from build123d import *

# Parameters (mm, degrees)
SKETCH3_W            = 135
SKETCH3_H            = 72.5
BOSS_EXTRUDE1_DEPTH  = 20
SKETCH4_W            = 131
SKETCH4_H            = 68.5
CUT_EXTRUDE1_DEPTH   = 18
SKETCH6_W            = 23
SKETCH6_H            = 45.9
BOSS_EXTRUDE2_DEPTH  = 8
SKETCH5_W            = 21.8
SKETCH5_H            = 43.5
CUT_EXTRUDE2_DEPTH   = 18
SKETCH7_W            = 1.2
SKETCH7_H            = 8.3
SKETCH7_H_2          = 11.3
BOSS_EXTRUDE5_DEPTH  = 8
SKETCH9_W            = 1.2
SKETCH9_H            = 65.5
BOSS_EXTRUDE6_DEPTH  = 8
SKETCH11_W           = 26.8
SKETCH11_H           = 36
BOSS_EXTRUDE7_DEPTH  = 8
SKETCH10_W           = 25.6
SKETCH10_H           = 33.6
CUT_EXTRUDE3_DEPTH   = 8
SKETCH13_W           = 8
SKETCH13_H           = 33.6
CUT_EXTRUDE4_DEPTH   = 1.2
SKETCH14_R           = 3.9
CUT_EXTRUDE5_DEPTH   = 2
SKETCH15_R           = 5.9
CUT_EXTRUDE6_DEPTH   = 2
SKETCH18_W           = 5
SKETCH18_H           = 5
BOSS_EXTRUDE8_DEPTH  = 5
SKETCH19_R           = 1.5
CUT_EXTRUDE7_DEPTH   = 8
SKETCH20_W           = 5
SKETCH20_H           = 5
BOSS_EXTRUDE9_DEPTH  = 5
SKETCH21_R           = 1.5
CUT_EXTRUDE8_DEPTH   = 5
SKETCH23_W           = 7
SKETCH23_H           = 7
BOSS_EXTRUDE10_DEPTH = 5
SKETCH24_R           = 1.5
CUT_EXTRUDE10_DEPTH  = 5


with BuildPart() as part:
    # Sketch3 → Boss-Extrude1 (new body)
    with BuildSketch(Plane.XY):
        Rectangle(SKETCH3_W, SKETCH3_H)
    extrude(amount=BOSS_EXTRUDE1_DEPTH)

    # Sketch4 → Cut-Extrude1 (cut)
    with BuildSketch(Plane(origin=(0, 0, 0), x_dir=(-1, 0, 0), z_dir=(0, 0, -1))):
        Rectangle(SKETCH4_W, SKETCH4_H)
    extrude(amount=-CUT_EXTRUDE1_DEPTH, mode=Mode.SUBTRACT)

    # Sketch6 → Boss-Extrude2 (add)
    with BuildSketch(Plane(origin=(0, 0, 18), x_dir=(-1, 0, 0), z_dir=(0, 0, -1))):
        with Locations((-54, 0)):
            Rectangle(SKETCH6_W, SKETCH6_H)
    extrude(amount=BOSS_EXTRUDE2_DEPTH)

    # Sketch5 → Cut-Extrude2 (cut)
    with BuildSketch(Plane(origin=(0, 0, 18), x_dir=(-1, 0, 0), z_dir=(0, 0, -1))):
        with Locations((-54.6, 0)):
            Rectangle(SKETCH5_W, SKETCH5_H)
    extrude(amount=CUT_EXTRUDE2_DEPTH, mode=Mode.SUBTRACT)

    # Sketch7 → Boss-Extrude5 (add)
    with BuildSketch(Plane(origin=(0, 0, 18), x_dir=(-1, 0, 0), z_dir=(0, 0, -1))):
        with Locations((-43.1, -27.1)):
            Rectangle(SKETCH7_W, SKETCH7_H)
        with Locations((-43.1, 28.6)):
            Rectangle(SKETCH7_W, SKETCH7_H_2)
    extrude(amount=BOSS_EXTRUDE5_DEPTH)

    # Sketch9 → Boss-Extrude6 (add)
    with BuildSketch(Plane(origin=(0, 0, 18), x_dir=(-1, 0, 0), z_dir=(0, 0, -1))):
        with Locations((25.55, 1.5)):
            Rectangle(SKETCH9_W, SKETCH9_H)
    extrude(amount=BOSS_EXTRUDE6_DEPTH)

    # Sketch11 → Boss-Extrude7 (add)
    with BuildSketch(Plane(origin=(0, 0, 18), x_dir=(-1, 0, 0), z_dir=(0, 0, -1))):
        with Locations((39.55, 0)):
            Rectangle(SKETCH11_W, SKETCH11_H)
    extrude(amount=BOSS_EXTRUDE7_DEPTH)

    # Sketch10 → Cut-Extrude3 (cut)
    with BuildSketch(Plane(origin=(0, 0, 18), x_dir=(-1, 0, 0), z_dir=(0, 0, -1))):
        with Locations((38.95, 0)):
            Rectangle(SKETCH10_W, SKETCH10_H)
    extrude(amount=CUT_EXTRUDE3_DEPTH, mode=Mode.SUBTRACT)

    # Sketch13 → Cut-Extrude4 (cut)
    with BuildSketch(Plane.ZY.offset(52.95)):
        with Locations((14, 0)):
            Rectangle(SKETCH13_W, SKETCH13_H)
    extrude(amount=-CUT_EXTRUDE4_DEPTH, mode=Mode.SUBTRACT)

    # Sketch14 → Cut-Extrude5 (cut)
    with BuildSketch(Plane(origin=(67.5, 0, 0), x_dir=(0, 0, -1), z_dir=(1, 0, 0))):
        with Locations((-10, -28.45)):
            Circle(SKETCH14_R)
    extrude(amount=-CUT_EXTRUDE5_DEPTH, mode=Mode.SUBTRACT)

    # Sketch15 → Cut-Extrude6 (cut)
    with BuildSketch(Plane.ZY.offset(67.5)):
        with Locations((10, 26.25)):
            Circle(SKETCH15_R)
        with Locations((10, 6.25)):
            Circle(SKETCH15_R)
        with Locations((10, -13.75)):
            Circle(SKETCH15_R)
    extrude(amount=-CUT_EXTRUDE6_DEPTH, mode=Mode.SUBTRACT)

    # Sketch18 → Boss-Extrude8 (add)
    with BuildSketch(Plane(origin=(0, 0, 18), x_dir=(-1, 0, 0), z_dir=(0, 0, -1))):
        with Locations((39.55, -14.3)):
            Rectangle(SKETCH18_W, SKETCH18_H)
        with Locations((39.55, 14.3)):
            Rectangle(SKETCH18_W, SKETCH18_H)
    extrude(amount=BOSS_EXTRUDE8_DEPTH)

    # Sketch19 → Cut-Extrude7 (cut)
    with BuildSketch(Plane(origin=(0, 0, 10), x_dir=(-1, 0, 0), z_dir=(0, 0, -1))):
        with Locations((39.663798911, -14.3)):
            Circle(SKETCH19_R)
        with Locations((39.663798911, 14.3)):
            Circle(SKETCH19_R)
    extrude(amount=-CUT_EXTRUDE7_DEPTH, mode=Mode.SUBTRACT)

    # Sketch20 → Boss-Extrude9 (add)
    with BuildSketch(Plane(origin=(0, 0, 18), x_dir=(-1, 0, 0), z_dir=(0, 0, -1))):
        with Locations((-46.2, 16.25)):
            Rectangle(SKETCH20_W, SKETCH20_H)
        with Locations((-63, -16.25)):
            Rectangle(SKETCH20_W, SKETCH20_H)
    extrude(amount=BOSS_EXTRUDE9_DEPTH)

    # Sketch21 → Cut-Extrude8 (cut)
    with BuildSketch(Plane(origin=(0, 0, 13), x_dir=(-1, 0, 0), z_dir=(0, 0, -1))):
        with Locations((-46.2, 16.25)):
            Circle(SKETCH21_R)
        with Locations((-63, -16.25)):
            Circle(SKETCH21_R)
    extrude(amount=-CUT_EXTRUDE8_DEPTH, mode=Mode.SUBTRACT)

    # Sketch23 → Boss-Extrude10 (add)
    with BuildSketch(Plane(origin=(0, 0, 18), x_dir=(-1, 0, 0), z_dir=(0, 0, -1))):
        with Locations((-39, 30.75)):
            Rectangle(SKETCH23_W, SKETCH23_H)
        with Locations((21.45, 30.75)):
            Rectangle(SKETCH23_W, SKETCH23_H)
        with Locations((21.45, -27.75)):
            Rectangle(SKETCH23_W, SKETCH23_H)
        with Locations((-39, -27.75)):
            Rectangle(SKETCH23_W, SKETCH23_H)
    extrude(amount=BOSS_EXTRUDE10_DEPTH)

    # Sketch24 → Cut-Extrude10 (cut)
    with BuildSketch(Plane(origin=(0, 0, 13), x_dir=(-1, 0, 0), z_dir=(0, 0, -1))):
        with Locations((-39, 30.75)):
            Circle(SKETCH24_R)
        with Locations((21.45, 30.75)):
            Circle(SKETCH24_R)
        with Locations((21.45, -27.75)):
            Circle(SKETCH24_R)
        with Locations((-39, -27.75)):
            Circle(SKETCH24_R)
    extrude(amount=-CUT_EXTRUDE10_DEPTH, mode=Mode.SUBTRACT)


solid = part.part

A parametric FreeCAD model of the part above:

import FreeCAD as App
import Part
import Sketcher

V = App.Vector


def add_polygon(sketch, points):
    """Adds a closed chain of lines whose ends are joined by coincident constraints."""
    first, n = sketch.GeometryCount, len(points)
    for a, b in zip(points, points[1:] + points[:1]):
        sketch.addGeometry(Part.LineSegment(App.Vector(*a, 0), App.Vector(*b, 0)), False)
    for i in range(n):
        sketch.addConstraint(Sketcher.Constraint("Coincident", first + i, 2, first + (i + 1) % n, 1))

doc = App.newDocument("Part")
body = doc.addObject("PartDesign::Body", "Body")

sketch1 = body.newObject("Sketcher::SketchObject", "Sketch")
sketch1.AttachmentSupport = (doc.getObject("XY_Plane"), [""])
sketch1.MapMode = "FlatFace"
add_polygon(sketch1, [(-68, 36), (-68, -36), (68, -36), (68, 36)])
sketch1.addConstraint([
    Sketcher.Constraint("Vertical", 0),
    Sketcher.Constraint("Horizontal", 1),
    Sketcher.Constraint("Vertical", 2),
    Sketcher.Constraint("Horizontal", 3),
    Sketcher.Constraint("Symmetric", 0, 2, 2, 2, -1, 1),
    Sketcher.Constraint("DistanceX", 1, 1, 1, 2, 135.0),
    Sketcher.Constraint("DistanceY", 0, 2, 0, 1, 72.5),
])
pad1 = body.newObject("PartDesign::Pad", "Pad")
pad1.Profile = sketch1
pad1.Length = 20

sketch2 = body.newObject("Sketcher::SketchObject", "Sketch001")
sketch2.AttachmentSupport = (doc.getObject("XY_Plane"), [""])
sketch2.MapMode = "FlatFace"
add_polygon(sketch2, [(66, 34), (66, -34), (-66, -34), (-66, 34)])
sketch2.addConstraint([
    Sketcher.Constraint("Vertical", 0),
    Sketcher.Constraint("Horizontal", 1),
    Sketcher.Constraint("Vertical", 2),
    Sketcher.Constraint("Horizontal", 3),
    Sketcher.Constraint("Symmetric", 0, 2, 2, 2, -1, 1),
    Sketcher.Constraint("DistanceX", 1, 2, 1, 1, 131.0),
    Sketcher.Constraint("DistanceY", 0, 2, 0, 1, 68.5),
])
pocket1 = body.newObject("PartDesign::Pocket", "Pocket")
pocket1.Profile = sketch2
pocket1.Length = 18
pocket1.Reversed = True

sketch3 = body.newObject("Sketcher::SketchObject", "Sketch002")
sketch3.AttachmentSupport = (doc.getObject("XY_Plane"), [""])
sketch3.MapMode = "FlatFace"
sketch3.AttachmentOffset = App.Placement(V(0, 0, 18), App.Rotation())
add_polygon(sketch3, [(66, 23), (66, -23), (42, -23), (42, 23)])
sketch3.addConstraint([
    Sketcher.Constraint("Vertical", 0),
    Sketcher.Constraint("Horizontal", 1),
    Sketcher.Constraint("Vertical", 2),
    Sketcher.Constraint("Horizontal", 3),
    Sketcher.Constraint("DistanceX", 1, 2, 1, 1, 23.0),
    Sketcher.Constraint("DistanceY", 0, 2, 0, 1, 45.9),
    Sketcher.Constraint("DistanceX", -1, 1, 0, 2, 65.5),
    Sketcher.Constraint("DistanceY", 0, 2, -1, 1, 22.95),
])
pad2 = body.newObject("PartDesign::Pad", "Pad001")
pad2.Profile = sketch3
pad2.Length = 8
pad2.Reversed = True

sketch4 = body.newObject("Sketcher::SketchObject", "Sketch003")
sketch4.AttachmentSupport = (doc.getObject("XY_Plane"), [""])
sketch4.MapMode = "FlatFace"
sketch4.AttachmentOffset = App.Placement(V(0, 0, 18), App.Rotation())
add_polygon(sketch4, [(66, 22), (66, -22), (44, -22), (44, 22)])
sketch4.addConstraint([
    Sketcher.Constraint("Vertical", 0),
    Sketcher.Constraint("Horizontal", 1),
    Sketcher.Constraint("Vertical", 2),
    Sketcher.Constraint("Horizontal", 3),
    Sketcher.Constraint("DistanceX", 1, 2, 1, 1, 21.8),
    Sketcher.Constraint("DistanceY", 0, 2, 0, 1, 43.5),
    Sketcher.Constraint("DistanceX", -1, 1, 0, 2, 65.5),
    Sketcher.Constraint("DistanceY", 0, 2, -1, 1, 21.75),
])
pocket2 = body.newObject("PartDesign::Pocket", "Pocket001")
pocket2.Profile = sketch4
pocket2.Length = 18

sketch5 = body.newObject("Sketcher::SketchObject", "Sketch004")
sketch5.AttachmentSupport = (doc.getObject("XY_Plane"), [""])
sketch5.MapMode = "FlatFace"
sketch5.AttachmentOffset = App.Placement(V(0, 0, 18), App.Rotation())
add_polygon(sketch5, [(43.7, -22.9), (43.7, -31.2), (42.5, -31.2), (42.5, -22.9)])
add_polygon(sketch5, [(43.7, 34.2), (43.7, 22.9), (42.5, 22.9), (42.5, 34.2)])
sketch5.addConstraint([
    Sketcher.Constraint("Vertical", 0),
    Sketcher.Constraint("Horizontal", 1),
    Sketcher.Constraint("Vertical", 2),
    Sketcher.Constraint("Horizontal", 3),
    Sketcher.Constraint("Vertical", 4),
    Sketcher.Constraint("Horizontal", 5),
    Sketcher.Constraint("Vertical", 6),
    Sketcher.Constraint("Horizontal", 7),
    Sketcher.Constraint("Symmetric", 3, 2, 4, 2, -1),
    Sketcher.Constraint("Vertical", 2, 2, 5, 2),
    Sketcher.Constraint("DistanceX", 1, 2, 1, 1, 1.2),
    Sketcher.Constraint("DistanceY", 0, 2, 0, 1, 8.3),
    Sketcher.Constraint("DistanceY", 4, 2, 4, 1, 11.3),
    Sketcher.Constraint("DistanceX", -1, 1, 0, 2, 43.7),
    Sketcher.Constraint("DistanceY", 3, 2, 4, 2, 45.9),
])
pad3 = body.newObject("PartDesign::Pad", "Pad002")
pad3.Profile = sketch5
pad3.Length = 8
pad3.Reversed = True

sketch6 = body.newObject("Sketcher::SketchObject", "Sketch005")
sketch6.AttachmentSupport = (doc.getObject("XY_Plane"), [""])
sketch6.MapMode = "FlatFace"
sketch6.AttachmentOffset = App.Placement(V(0, 0, 18), App.Rotation())
add_polygon(sketch6, [(-24.9, 34.2), (-24.9, -31.2), (-26.1, -31.2), (-26.1, 34.2)])
sketch6.addConstraint([
    Sketcher.Constraint("Vertical", 0),
    Sketcher.Constraint("Horizontal", 1),
    Sketcher.Constraint("Vertical", 2),
    Sketcher.Constraint("Horizontal", 3),
    Sketcher.Constraint("DistanceX", 1, 2, 1, 1, 1.2),
    Sketcher.Constraint("DistanceY", 0, 2, 0, 1, 65.5),
    Sketcher.Constraint("DistanceX", 0, 2, -1, 1, 24.95),
    Sketcher.Constraint("DistanceY", 0, 2, -1, 1, 31.25),
])
pad4 = body.newObject("PartDesign::Pad", "Pad003")
pad4.Profile = sketch6
pad4.Length = 8
pad4.Reversed = True

sketch7 = body.newObject("Sketcher::SketchObject", "Sketch006")
sketch7.AttachmentSupport = (doc.getObject("XY_Plane"), [""])
sketch7.MapMode = "FlatFace"
sketch7.AttachmentOffset = App.Placement(V(0, 0, 18), App.Rotation())
add_polygon(sketch7, [(-26, 18), (-26, -18), (-53, -18), (-53, 18)])
sketch7.addConstraint([
    Sketcher.Constraint("Vertical", 0),
    Sketcher.Constraint("Horizontal", 1),
    Sketcher.Constraint("Vertical", 2),
    Sketcher.Constraint("Horizontal", 3),
    Sketcher.Constraint("DistanceY", 0, 2, 0, 1, 36.0),
    Sketcher.Constraint("DistanceX", 1, 2, 1, 1, 26.8),
    Sketcher.Constraint("DistanceY", 0, 2, -1, 1, 18.0),
    Sketcher.Constraint("DistanceX", 0, 2, -1, 1, 26.15),
])
pad5 = body.newObject("PartDesign::Pad", "Pad004")
pad5.Profile = sketch7
pad5.Length = 8
pad5.Reversed = True

sketch8 = body.newObject("Sketcher::SketchObject", "Sketch007")
sketch8.AttachmentSupport = (doc.getObject("XY_Plane"), [""])
sketch8.MapMode = "FlatFace"
sketch8.AttachmentOffset = App.Placement(V(0, 0, 18), App.Rotation())
add_polygon(sketch8, [(-26, 17), (-26, -17), (-52, -17), (-52, 17)])
sketch8.addConstraint([
    Sketcher.Constraint("Vertical", 0),
    Sketcher.Constraint("Horizontal", 1),
    Sketcher.Constraint("Vertical", 2),
    Sketcher.Constraint("Horizontal", 3),
    Sketcher.Constraint("DistanceX", 1, 2, 1, 1, 25.6),
    Sketcher.Constraint("DistanceY", 0, 2, 0, 1, 33.6),
    Sketcher.Constraint("DistanceY", 0, 2, -1, 1, 16.8),
    Sketcher.Constraint("DistanceX", 0, 2, -1, 1, 26.15),
])
pocket3 = body.newObject("PartDesign::Pocket", "Pocket002")
pocket3.Profile = sketch8
pocket3.Length = 8

sketch9 = body.newObject("Sketcher::SketchObject", "Sketch008")
sketch9.AttachmentSupport = (doc.getObject("YZ_Plane"), [""])
sketch9.MapMode = "FlatFace"
sketch9.AttachmentOffset = App.Placement(V(0, 0, -52.95), App.Rotation())
add_polygon(sketch9, [(17, 10), (-17, 10), (-17, 18), (17, 18)])
sketch9.addConstraint([
    Sketcher.Constraint("Horizontal", 0),
    Sketcher.Constraint("Vertical", 1),
    Sketcher.Constraint("Horizontal", 2),
    Sketcher.Constraint("Vertical", 3),
    Sketcher.Constraint("DistanceY", 1, 1, 1, 2, 8.0),
    Sketcher.Constraint("DistanceX", 0, 2, 0, 1, 33.6),
    Sketcher.Constraint("DistanceY", -1, 1, 0, 2, 10.0),
    Sketcher.Constraint("DistanceX", 0, 2, -1, 1, 16.8),
])
pocket4 = body.newObject("PartDesign::Pocket", "Pocket003")
pocket4.Profile = sketch9
pocket4.Length = 1.2
pocket4.Reversed = True

sketch10 = body.newObject("Sketcher::SketchObject", "Sketch009")
sketch10.AttachmentSupport = (doc.getObject("YZ_Plane"), [""])
sketch10.MapMode = "FlatFace"
sketch10.AttachmentOffset = App.Placement(V(0, 0, 67.5), App.Rotation())
sketch10.addGeometry(Part.Circle(V(-28.4, 10, 0), V(0, 0, 1), 3.9), False)
sketch10.addConstraint([
    Sketcher.Constraint("Diameter", 0, 7.8),
    Sketcher.Constraint("DistanceY", -1, 1, 0, 3, 10.0),
    Sketcher.Constraint("DistanceX", 0, 3, -1, 1, 28.45),
])
pocket5 = body.newObject("PartDesign::Pocket", "Pocket004")
pocket5.Profile = sketch10
pocket5.Length = 2

sketch11 = body.newObject("Sketcher::SketchObject", "Sketch010")
sketch11.AttachmentSupport = (doc.getObject("YZ_Plane"), [""])
sketch11.MapMode = "FlatFace"
sketch11.AttachmentOffset = App.Placement(V(0, 0, -67.5), App.Rotation())
sketch11.addGeometry([
    Part.Circle(V(26, 10, 0), V(0, 0, 1), 6),
    Part.Circle(V(6, 10, 0), V(0, 0, 1), 6),
    Part.Circle(V(-14, 10, 0), V(0, 0, 1), 6),
], False)
sketch11.addConstraint([
    Sketcher.Constraint("Equal", 0, 1),
    Sketcher.Constraint("Equal", 1, 2),
    Sketcher.Constraint("Horizontal", 0, 3, 1, 3),
    Sketcher.Constraint("Horizontal", 1, 3, 2, 3),
    Sketcher.Constraint("Diameter", 0, 11.8),
    Sketcher.Constraint("DistanceY", -1, 1, 0, 3, 10.0),
    Sketcher.Constraint("DistanceX", 1, 3, 0, 3, 20.0),
    Sketcher.Constraint("DistanceX", 2, 3, 1, 3, 20.0),
    Sketcher.Constraint("DistanceX", -1, 1, 0, 3, 26.25),
])
pocket6 = body.newObject("PartDesign::Pocket", "Pocket005")
pocket6.Profile = sketch11
pocket6.Length = 2
pocket6.Reversed = True

sketch12 = body.newObject("Sketcher::SketchObject", "Sketch011")
sketch12.AttachmentSupport = (doc.getObject("XY_Plane"), [""])
sketch12.MapMode = "FlatFace"
sketch12.AttachmentOffset = App.Placement(V(0, 0, 18), App.Rotation())
add_polygon(sketch12, [(-37, -12), (-37, -17), (-42, -17), (-42, -12)])
add_polygon(sketch12, [(-37, 17), (-37, 12), (-42, 12), (-42, 17)])
sketch12.addConstraint([
    Sketcher.Constraint("Vertical", 0),
    Sketcher.Constraint("Horizontal", 1),
    Sketcher.Constraint("Vertical", 2),
    Sketcher.Constraint("Horizontal", 3),
    Sketcher.Constraint("Vertical", 4),
    Sketcher.Constraint("Horizontal", 5),
    Sketcher.Constraint("Vertical", 6),
    Sketcher.Constraint("Horizontal", 7),
    Sketcher.Constraint("Symmetric", 3, 2, 4, 2, -1),
    Sketcher.Constraint("Symmetric", 1, 2, 6, 2, -1),
    Sketcher.Constraint("Equal", 7, 0),
    Sketcher.Constraint("DistanceX", 1, 2, 1, 1, 5.0),
    Sketcher.Constraint("DistanceY", 0, 2, -1, 1, 16.8),
    Sketcher.Constraint("DistanceX", 0, 2, -1, 1, 37.05),
])
pad6 = body.newObject("PartDesign::Pad", "Pad005")
pad6.Profile = sketch12
pad6.Length = 5
pad6.Reversed = True

sketch13 = body.newObject("Sketcher::SketchObject", "Sketch012")
sketch13.AttachmentSupport = (doc.getObject("XY_Plane"), [""])
sketch13.MapMode = "FlatFace"
sketch13.AttachmentOffset = App.Placement(V(0, 0, 10), App.Rotation())
sketch13.addGeometry([
    Part.Circle(V(-39.7, -14.3, 0), V(0, 0, 1), 1.5),
    Part.Circle(V(-39.7, 14.3, 0), V(0, 0, 1), 1.5),
], False)
sketch13.addConstraint([
    Sketcher.Constraint("Equal", 0, 1),
    Sketcher.Constraint("Symmetric", 0, 3, 1, 3, -1),
    Sketcher.Constraint("Diameter", 0, 3.0),
    Sketcher.Constraint("DistanceY", 0, 3, -1, 1, 14.3),
    Sketcher.Constraint("DistanceX", 0, 3, -1, 1, 39.663799),
])
pocket7 = body.newObject("PartDesign::Pocket", "Pocket006")
pocket7.Profile = sketch13
pocket7.Length = 8
pocket7.Reversed = True

sketch14 = body.newObject("Sketcher::SketchObject", "Sketch013")
sketch14.AttachmentSupport = (doc.getObject("XY_Plane"), [""])
sketch14.MapMode = "FlatFace"
sketch14.AttachmentOffset = App.Placement(V(0, 0, 18), App.Rotation())
add_polygon(sketch14, [(49, 19), (49, 14), (44, 14), (44, 19)])
add_polygon(sketch14, [(66, -14), (66, -19), (60, -19), (60, -14)])
sketch14.addConstraint([
    Sketcher.Constraint("Vertical", 0),
    Sketcher.Constraint("Horizontal", 1),
    Sketcher.Constraint("Vertical", 2),
    Sketcher.Constraint("Horizontal", 3),
    Sketcher.Constraint("Vertical", 4),
    Sketcher.Constraint("Horizontal", 5),
    Sketcher.Constraint("Vertical", 6),
    Sketcher.Constraint("Horizontal", 7),
    Sketcher.Constraint("Equal", 3, 5),
    Sketcher.Constraint("Equal", 7, 0),
    Sketcher.Constraint("Equal", 2, 4),
    Sketcher.Constraint("DistanceX", 1, 2, 1, 1, 5.0),
    Sketcher.Constraint("DistanceX", -1, 1, 0, 2, 48.7),
    Sketcher.Constraint("DistanceX", -1, 1, 4, 2, 65.5),
    Sketcher.Constraint("DistanceY", 4, 2, 0, 2, 32.5),
    Sketcher.Constraint("DistanceY", -1, 1, 0, 2, 13.75),
])
pad7 = body.newObject("PartDesign::Pad", "Pad006")
pad7.Profile = sketch14
pad7.Length = 5
pad7.Reversed = True

sketch15 = body.newObject("Sketcher::SketchObject", "Sketch014")
sketch15.AttachmentSupport = (doc.getObject("XY_Plane"), [""])
sketch15.MapMode = "FlatFace"
sketch15.AttachmentOffset = App.Placement(V(0, 0, 13), App.Rotation())
sketch15.addGeometry([
    Part.Circle(V(46.2, 16.2, 0), V(0, 0, 1), 1.5),
    Part.Circle(V(63, -16.2, 0), V(0, 0, 1), 1.5),
], False)
sketch15.addConstraint([
    Sketcher.Constraint("Equal", 0, 1),
    Sketcher.Constraint("Diameter", 0, 3.0),
    Sketcher.Constraint("DistanceX", -1, 1, 1, 3, 63.0),
    Sketcher.Constraint("DistanceX", -1, 1, 0, 3, 46.2),
    Sketcher.Constraint("DistanceY", 1, 3, 0, 3, 32.5),
    Sketcher.Constraint("DistanceY", -1, 1, 0, 3, 16.25),
])
pocket8 = body.newObject("PartDesign::Pocket", "Pocket007")
pocket8.Profile = sketch15
pocket8.Length = 5
pocket8.Reversed = True

sketch16 = body.newObject("Sketcher::SketchObject", "Sketch015")
sketch16.AttachmentSupport = (doc.getObject("XY_Plane"), [""])
sketch16.MapMode = "FlatFace"
sketch16.AttachmentOffset = App.Placement(V(0, 0, 18), App.Rotation())
add_polygon(sketch16, [(42, 34), (42, 27), (36, 27), (36, 34)])
add_polygon(sketch16, [(-18, 34), (-18, 27), (-25, 27), (-25, 34)])
add_polygon(sketch16, [(-18, -24), (-18, -31), (-25, -31), (-25, -24)])
add_polygon(sketch16, [(42, -24), (42, -31), (36, -31), (36, -24)])
sketch16.addConstraint([
    Sketcher.Constraint("Vertical", 0),
    Sketcher.Constraint("Horizontal", 1),
    Sketcher.Constraint("Vertical", 2),
    Sketcher.Constraint("Horizontal", 3),
    Sketcher.Constraint("Vertical", 4),
    Sketcher.Constraint("Horizontal", 5),
    Sketcher.Constraint("Vertical", 6),
    Sketcher.Constraint("Horizontal", 7),
    Sketcher.Constraint("Vertical", 8),
    Sketcher.Constraint("Horizontal", 9),
    Sketcher.Constraint("Vertical", 10),
    Sketcher.Constraint("Horizontal", 11),
    Sketcher.Constraint("Vertical", 12),
    Sketcher.Constraint("Horizontal", 13),
    Sketcher.Constraint("Vertical", 14),
    Sketcher.Constraint("Horizontal", 15),
    Sketcher.Constraint("Horizontal", 1, 2, 4, 2),
    Sketcher.Constraint("Horizontal", 3, 2, 6, 2),
    Sketcher.Constraint("Horizontal", 9, 2, 12, 2),
    Sketcher.Constraint("Horizontal", 11, 2, 14, 2),
    Sketcher.Constraint("Vertical", 7, 2, 8, 2),
    Sketcher.Constraint("Vertical", 6, 2, 9, 2),
    Sketcher.Constraint("Vertical", 3, 2, 12, 2),
    Sketcher.Constraint("Vertical", 2, 2, 13, 2),
    Sketcher.Constraint("Equal", 3, 5),
    Sketcher.Constraint("Equal", 15, 0),
    Sketcher.Constraint("Equal", 6, 8),
    Sketcher.Constraint("DistanceX", 1, 2, 1, 1, 7.0),
    Sketcher.Constraint("DistanceX", -1, 1, 0, 2, 42.5),
    Sketcher.Constraint("DistanceY", 8, 2, 4, 2, 58.5),
    Sketcher.Constraint("DistanceY", -1, 1, 0, 2, 27.25),
    Sketcher.Constraint("DistanceX", 4, 2, -1, 1, 17.95),
])
pad8 = body.newObject("PartDesign::Pad", "Pad007")
pad8.Profile = sketch16
pad8.Length = 5
pad8.Reversed = True

sketch17 = body.newObject("Sketcher::SketchObject", "Sketch016")
sketch17.AttachmentSupport = (doc.getObject("XY_Plane"), [""])
sketch17.MapMode = "FlatFace"
sketch17.AttachmentOffset = App.Placement(V(0, 0, 13), App.Rotation())
sketch17.addGeometry([
    Part.Circle(V(39, 30.8, 0), V(0, 0, 1), 1.5),
    Part.Circle(V(-21.4, 30.8, 0), V(0, 0, 1), 1.5),
    Part.Circle(V(-21.4, -27.8, 0), V(0, 0, 1), 1.5),
    Part.Circle(V(39, -27.8, 0), V(0, 0, 1), 1.5),
], False)
sketch17.addConstraint([
    Sketcher.Constraint("Equal", 0, 1),
    Sketcher.Constraint("Equal", 1, 2),
    Sketcher.Constraint("Equal", 2, 3),
    Sketcher.Constraint("Horizontal", 0, 3, 1, 3),
    Sketcher.Constraint("Horizontal", 2, 3, 3, 3),
    Sketcher.Constraint("Vertical", 1, 3, 2, 3),
    Sketcher.Constraint("Vertical", 0, 3, 3, 3),
    Sketcher.Constraint("Diameter", 0, 3.0),
    Sketcher.Constraint("DistanceX", -1, 1, 0, 3, 39.0),
    Sketcher.Constraint("DistanceY", 2, 3, 1, 3, 58.5),
    Sketcher.Constraint("DistanceY", -1, 1, 0, 3, 30.75),
    Sketcher.Constraint("DistanceX", 1, 3, -1, 1, 21.45),
])
pocket9 = body.newObject("PartDesign::Pocket", "Pocket008")
pocket9.Profile = sketch17
pocket9.Length = 5
pocket9.Reversed = True

doc.recompute()
